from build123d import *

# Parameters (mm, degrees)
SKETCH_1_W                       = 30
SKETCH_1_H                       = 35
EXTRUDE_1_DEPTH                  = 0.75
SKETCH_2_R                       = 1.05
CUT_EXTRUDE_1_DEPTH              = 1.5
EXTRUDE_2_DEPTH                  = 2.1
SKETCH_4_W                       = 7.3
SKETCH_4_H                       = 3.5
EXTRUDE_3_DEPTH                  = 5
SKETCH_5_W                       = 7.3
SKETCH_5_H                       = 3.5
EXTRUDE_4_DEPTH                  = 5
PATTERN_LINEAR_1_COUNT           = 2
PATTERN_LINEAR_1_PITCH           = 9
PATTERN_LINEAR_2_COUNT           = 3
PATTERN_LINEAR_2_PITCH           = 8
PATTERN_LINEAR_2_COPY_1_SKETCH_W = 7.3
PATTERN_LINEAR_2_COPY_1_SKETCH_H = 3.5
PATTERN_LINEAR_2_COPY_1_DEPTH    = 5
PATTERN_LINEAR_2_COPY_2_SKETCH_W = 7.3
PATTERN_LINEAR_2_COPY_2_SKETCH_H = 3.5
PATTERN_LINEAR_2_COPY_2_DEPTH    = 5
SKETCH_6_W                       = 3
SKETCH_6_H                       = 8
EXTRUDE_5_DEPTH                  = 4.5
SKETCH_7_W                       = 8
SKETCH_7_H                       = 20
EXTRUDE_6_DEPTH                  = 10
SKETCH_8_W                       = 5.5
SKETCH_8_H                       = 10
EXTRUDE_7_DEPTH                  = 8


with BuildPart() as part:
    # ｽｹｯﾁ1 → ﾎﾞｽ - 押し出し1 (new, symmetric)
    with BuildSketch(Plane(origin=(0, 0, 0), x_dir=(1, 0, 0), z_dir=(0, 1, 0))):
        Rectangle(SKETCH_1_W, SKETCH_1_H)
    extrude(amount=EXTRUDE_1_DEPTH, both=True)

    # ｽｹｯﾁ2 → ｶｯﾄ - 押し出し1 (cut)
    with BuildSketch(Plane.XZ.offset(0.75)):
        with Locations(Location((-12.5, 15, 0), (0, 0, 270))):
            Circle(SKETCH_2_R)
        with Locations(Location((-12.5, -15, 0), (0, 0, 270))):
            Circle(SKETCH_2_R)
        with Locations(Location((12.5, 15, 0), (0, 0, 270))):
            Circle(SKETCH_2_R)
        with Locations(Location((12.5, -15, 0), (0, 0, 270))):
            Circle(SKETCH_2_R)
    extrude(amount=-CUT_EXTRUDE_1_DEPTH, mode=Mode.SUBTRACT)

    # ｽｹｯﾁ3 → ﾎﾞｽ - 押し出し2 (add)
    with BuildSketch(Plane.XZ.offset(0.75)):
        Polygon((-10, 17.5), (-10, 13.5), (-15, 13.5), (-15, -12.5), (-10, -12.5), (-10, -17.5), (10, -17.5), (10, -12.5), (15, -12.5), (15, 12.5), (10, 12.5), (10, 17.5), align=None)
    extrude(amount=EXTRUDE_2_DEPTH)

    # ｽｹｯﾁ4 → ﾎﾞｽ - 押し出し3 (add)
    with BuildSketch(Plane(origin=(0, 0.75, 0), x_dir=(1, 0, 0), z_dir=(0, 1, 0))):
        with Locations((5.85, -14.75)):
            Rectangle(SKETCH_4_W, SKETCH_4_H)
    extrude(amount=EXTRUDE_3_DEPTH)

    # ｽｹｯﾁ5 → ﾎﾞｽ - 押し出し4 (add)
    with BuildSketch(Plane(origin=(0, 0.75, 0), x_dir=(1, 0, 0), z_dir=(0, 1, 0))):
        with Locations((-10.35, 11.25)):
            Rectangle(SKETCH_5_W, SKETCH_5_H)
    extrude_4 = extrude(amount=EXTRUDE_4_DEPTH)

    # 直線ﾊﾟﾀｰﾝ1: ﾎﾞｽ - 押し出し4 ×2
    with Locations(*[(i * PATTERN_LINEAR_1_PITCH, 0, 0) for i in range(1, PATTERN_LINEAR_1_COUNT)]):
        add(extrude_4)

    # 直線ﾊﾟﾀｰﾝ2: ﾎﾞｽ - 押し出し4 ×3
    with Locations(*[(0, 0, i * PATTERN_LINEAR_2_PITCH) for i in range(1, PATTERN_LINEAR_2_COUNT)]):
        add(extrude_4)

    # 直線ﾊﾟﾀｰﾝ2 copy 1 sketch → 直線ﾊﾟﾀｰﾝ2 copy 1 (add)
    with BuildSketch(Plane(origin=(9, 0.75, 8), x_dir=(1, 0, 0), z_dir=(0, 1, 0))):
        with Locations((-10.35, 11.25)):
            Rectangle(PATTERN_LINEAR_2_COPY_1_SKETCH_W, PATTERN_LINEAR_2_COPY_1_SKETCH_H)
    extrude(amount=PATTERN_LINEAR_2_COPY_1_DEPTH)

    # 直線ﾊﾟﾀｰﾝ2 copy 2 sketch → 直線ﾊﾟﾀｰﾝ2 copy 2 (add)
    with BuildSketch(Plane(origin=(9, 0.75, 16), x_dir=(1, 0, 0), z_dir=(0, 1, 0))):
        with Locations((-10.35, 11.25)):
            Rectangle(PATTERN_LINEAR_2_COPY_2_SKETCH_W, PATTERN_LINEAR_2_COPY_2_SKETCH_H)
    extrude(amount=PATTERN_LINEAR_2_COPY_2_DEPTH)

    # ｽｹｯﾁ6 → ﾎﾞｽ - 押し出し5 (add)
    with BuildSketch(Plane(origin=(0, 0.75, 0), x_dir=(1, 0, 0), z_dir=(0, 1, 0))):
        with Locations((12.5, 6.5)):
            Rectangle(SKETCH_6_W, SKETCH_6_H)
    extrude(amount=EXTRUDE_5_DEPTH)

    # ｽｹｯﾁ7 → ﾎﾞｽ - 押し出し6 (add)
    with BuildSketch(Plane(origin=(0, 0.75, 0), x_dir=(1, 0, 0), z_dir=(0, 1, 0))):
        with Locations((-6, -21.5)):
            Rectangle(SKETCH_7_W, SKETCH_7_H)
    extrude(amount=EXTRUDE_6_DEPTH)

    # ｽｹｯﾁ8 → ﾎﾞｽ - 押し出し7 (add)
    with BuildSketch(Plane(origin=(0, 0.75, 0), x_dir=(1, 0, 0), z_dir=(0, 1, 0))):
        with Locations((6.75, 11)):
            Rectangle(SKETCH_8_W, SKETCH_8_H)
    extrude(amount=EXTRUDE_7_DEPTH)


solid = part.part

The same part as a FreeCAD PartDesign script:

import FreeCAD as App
import Part
import Sketcher
from FreeCAD import Vector
Q = App.Units.Quantity


def add_polygon(sketch, points):
    """Adds a closed chain of lines whose ends are joined by coincident constraints."""
    first, n = sketch.GeometryCount, len(points)
    for a, b in zip(points, points[1:] + points[:1]):
        sketch.addGeometry(Part.LineSegment(App.Vector(*a, 0), App.Vector(*b, 0)), False)
    for i in range(n):
        sketch.addConstraint(Sketcher.Constraint("Coincident", first + i, 2, first + (i + 1) % n, 1))

doc = App.newDocument("Part")
body = doc.addObject("PartDesign::Body", "Body")

sketch1 = body.newObject("Sketcher::SketchObject", "Sketch")
sketch1.AttachmentSupport = (doc.getObject("XZ_Plane"), [""])
sketch1.MapMode = "FlatFace"
add_polygon(sketch1, [(-15, -18), (-15, 18), (15, 18), (15, -18)])
sketch1.addConstraint(Sketcher.Constraint("Vertical", 0))
sketch1.addConstraint(Sketcher.Constraint("Horizontal", 1))
sketch1.addConstraint(Sketcher.Constraint("Vertical", 2))
sketch1.addConstraint(Sketcher.Constraint("Horizontal", 3))
sketch1.addConstraint(Sketcher.Constraint("Symmetric", 0, 2, 2, 2, -1, 1))
sketch1.addConstraint(Sketcher.Constraint("DistanceX", 1, 1, 1, 2, Q("30 mm")))
sketch1.addConstraint(Sketcher.Constraint("DistanceY", 0, 1, 0, 2, Q("35 mm")))
pad1 = body.newObject("PartDesign::Pad", "Pad")
pad1.Profile = sketch1
pad1.Length = 1.5
pad1.Midplane = True

sketch2 = body.newObject("Sketcher::SketchObject", "Sketch001")
sketch2.AttachmentSupport = (doc.getObject("XZ_Plane"), [""])
sketch2.MapMode = "FlatFace"
sketch2.AttachmentOffset = App.Placement(Vector(0, 0, 0.75), App.Rotation())
sketch2.addGeometry(Part.Circle(Vector(-12.5, 15, 0), Vector(0, 0, 1), 1.1), False)
sketch2.addGeometry(Part.Circle(Vector(-12.5, -15, 0), Vector(0, 0, 1), 1.1), False)
sketch2.addGeometry(Part.Circle(Vector(12.5, 15, 0), Vector(0, 0, 1), 1.1), False)
sketch2.addGeometry(Part.Circle(Vector(12.5, -15, 0), Vector(0, 0, 1), 1.1), False)
sketch2.addConstraint(Sketcher.Constraint("Equal", 0, 1))
sketch2.addConstraint(Sketcher.Constraint("Equal", 1, 2))
sketch2.addConstraint(Sketcher.Constraint("Equal", 2, 3))
sketch2.addConstraint(Sketcher.Constraint("Symmetric", 1, 3, 2, 3, -1, 1))
sketch2.addConstraint(Sketcher.Constraint("Symmetric", 0, 3, 3, 3, -1, 1))
sketch2.addConstraint(Sketcher.Constraint("Symmetric", 0, 3, 2, 3, -2))
sketch2.addConstraint(Sketcher.Constraint("Diameter", 0, Q("2.1 mm")))
sketch2.addConstraint(Sketcher.Constraint("DistanceY", -1, 1, 0, 3, Q("15 mm")))
sketch2.addConstraint(Sketcher.Constraint("DistanceX", 0, 3, 2, 3, Q("25 mm")))
pocket1 = body.newObject("PartDesign::Pocket", "Pocket")
pocket1.Profile = sketch2
pocket1.Length = 1.5

sketch3 = body.newObject("Sketcher::SketchObject", "Sketch002")
sketch3.AttachmentSupport = (doc.getObject("XZ_Plane"), [""])
sketch3.MapMode = "FlatFace"
sketch3.AttachmentOffset = App.Placement(Vector(0, 0, 0.75), App.Rotation())
add_polygon(sketch3, [(-10, 17.5), (-10, 13.5), (-15, 13.5), (-15, -12.5), (-10, -12.5), (-10, -17.5), (10, -17.5), (10, -12.5), (15, -12.5), (15, 12.5), (10, 12.5), (10, 17.5)])
sketch3.addConstraint(Sketcher.Constraint("Vertical", 0))
sketch3.addConstraint(Sketcher.Constraint("Horizontal", 1))
sketch3.addConstraint(Sketcher.Constraint("Vertical", 2))
sketch3.addConstraint(Sketcher.Constraint("Horizontal", 3))
sketch3.addConstraint(Sketcher.Constraint("Vertical", 4))
sketch3.addConstraint(Sketcher.Constraint("Horizontal", 5))
sketch3.addConstraint(Sketcher.Constraint("Vertical", 6))
sketch3.addConstraint(Sketcher.Constraint("Horizontal", 7))
sketch3.addConstraint(Sketcher.Constraint("Vertical", 8))
sketch3.addConstraint(Sketcher.Constraint("Horizontal", 9))
sketch3.addConstraint(Sketcher.Constraint("Vertical", 10))
sketch3.addConstraint(Sketcher.Constraint("Horizontal", 11))
sketch3.addConstraint(Sketcher.Constraint("Symmetric", 2, 2, 8, 2, -1, 1))
sketch3.addConstraint(Sketcher.Constraint("Symmetric", 4, 2, 10, 2, -1, 1))
sketch3.addConstraint(Sketcher.Constraint("Symmetric", 3, 2, 6, 2, -2))
sketch3.addConstraint(Sketcher.Constraint("Vertical", 0, 2, 3, 2))
sketch3.addConstraint(Sketcher.Constraint("Equal", 9, 4))
sketch3.addConstraint(Sketcher.Constraint("DistanceX", 1, 2, 1, 1, Q("5 mm")))
sketch3.addConstraint(Sketcher.Constraint("DistanceX", 5, 1, 5, 2, Q("20 mm")))
sketch3.addConstraint(Sketcher.Constraint("DistanceY", 0, 2, 0, 1, Q("4 mm")))
sketch3.addConstraint(Sketcher.Constraint("DistanceY", 2, 2, 2, 1, Q("26 mm")))
pad2 = body.newObject("PartDesign::Pad", "Pad001")
pad2.Profile = sketch3
pad2.Length = 2.1

sketch4 = body.newObject("Sketcher::SketchObject", "Sketch003")
sketch4.AttachmentSupport = (doc.getObject("XZ_Plane"), [""])
sketch4.MapMode = "FlatFace"
sketch4.AttachmentOffset = App.Placement(Vector(0, 0, -0.75), App.Rotation())
add_polygon(sketch4, [(2.2, 13), (2.2, 16.5), (9.5, 16.5), (9.5, 13)])
sketch4.addConstraint(Sketcher.Constraint("Vertical", 0))
sketch4.addConstraint(Sketcher.Constraint("Horizontal", 1))
sketch4.addConstraint(Sketcher.Constraint("Vertical", 2))
sketch4.addConstraint(Sketcher.Constraint("Horizontal", 3))
sketch4.addConstraint(Sketcher.Constraint("DistanceX", 1, 1, 1, 2, Q("7.3 mm")))
sketch4.addConstraint(Sketcher.Constraint("DistanceY", 0, 1, 0, 2, Q("3.5 mm")))
sketch4.addConstraint(Sketcher.Constraint("DistanceY", -1, 1, 2, 2, Q("13 mm")))
sketch4.addConstraint(Sketcher.Constraint("DistanceX", -1, 1, 0, 2, Q("2.2 mm")))
pad3 = body.newObject("PartDesign::Pad", "Pad002")
pad3.Profile = sketch4
pad3.Length = 5
pad3.Reversed = True

sketch5 = body.newObject("Sketcher::SketchObject", "Sketch004")
sketch5.AttachmentSupport = (doc.getObject("XZ_Plane"), [""])
sketch5.MapMode = "FlatFace"
sketch5.AttachmentOffset = App.Placement(Vector(0, 0, -0.75), App.Rotation())
add_polygon(sketch5, [(-14, -13), (-14, -9.5), (-6.7, -9.5), (-6.7, -13)])
sketch5.addConstraint(Sketcher.Constraint("Vertical", 0))
sketch5.addConstraint(Sketcher.Constraint("Horizontal", 1))
sketch5.addConstraint(Sketcher.Constraint("Vertical", 2))
sketch5.addConstraint(Sketcher.Constraint("Horizontal", 3))
sketch5.addConstraint(Sketcher.Constraint("DistanceX", 1, 1, 1, 2, Q("7.3 mm")))
sketch5.addConstraint(Sketcher.Constraint("DistanceY", 0, 1, 0, 2, Q("3.5 mm")))
sketch5.addConstraint(Sketcher.Constraint("DistanceX", 0, 2, -1, 1, Q("14 mm")))
sketch5.addConstraint(Sketcher.Constraint("DistanceY", 2, 2, -1, 1, Q("13 mm")))
pad4 = body.newObject("PartDesign::Pad", "Pad003")
pad4.Profile = sketch5
pad4.Length = 5
pad4.Reversed = True
doc.recompute()

linearpattern = body.newObject("PartDesign::LinearPattern", "LinearPattern")
linearpattern.Originals = [pad4]
linearpattern.Direction = (doc.getObject("X_Axis"), [""])
linearpattern.Mode = "offset"
linearpattern.Offset = 9
linearpattern.Occurrences = 2
body.Tip = linearpattern
doc.recompute()

linearpattern2 = body.newObject("PartDesign::LinearPattern", "LinearPattern001")
linearpattern2.Originals = [pad4]
linearpattern2.Direction = (doc.getObject("Z_Axis"), [""])
linearpattern2.Mode = "offset"
linearpattern2.Offset = 8
linearpattern2.Occurrences = 3
body.Tip = linearpattern2

sketch6 = body.newObject("Sketcher::SketchObject", "Sketch005")
sketch6.AttachmentSupport = (doc.getObject("XZ_Plane"), [""])
sketch6.MapMode = "FlatFace"
sketch6.AttachmentOffset = App.Placement(Vector(0, 0, -0.75), App.Rotation())
add_polygon(sketch6, [(-5, -5), (-5, -1.5), (2.3, -1.5), (2.3, -5)])
sketch6.addConstraint(Sketcher.Constraint("Vertical", 0))
sketch6.addConstraint(Sketcher.Constraint("Horizontal", 1))
sketch6.addConstraint(Sketcher.Constraint("Vertical", 2))
sketch6.addConstraint(Sketcher.Constraint("Horizontal", 3))
sketch6.addConstraint(Sketcher.Constraint("DistanceX", 1, 1, 1, 2, Q("7.3 mm")))
sketch6.addConstraint(Sketcher.Constraint("DistanceY", 0, 1, 0, 2, Q("3.5 mm")))
sketch6.addConstraint(Sketcher.Constraint("DistanceX", 0, 2, -1, 1, Q("5 mm")))
sketch6.addConstraint(Sketcher.Constraint("DistanceY", 2, 2, -1, 1, Q("5 mm")))
pad5 = body.newObject("PartDesign::Pad", "Pad004")
pad5.Profile = sketch6
pad5.Length = 5
pad5.Reversed = True

sketch7 = body.newObject("Sketcher::SketchObject", "Sketch006")
sketch7.AttachmentSupport = (doc.getObject("XZ_Plane"), [""])
sketch7.MapMode = "FlatFace"
sketch7.AttachmentOffset = App.Placement(Vector(0, 0, -0.75), App.Rotation())
add_polygon(sketch7, [(-5, 3), (-5, 6.5), (2.3, 6.5), (2.3, 3)])
sketch7.addConstraint(Sketcher.Constraint("Vertical", 0))
sketch7.addConstraint(Sketcher.Constraint("Horizontal", 1))
sketch7.addConstraint(Sketcher.Constraint("Vertical", 2))
sketch7.addConstraint(Sketcher.Constraint("Horizontal", 3))
sketch7.addConstraint(Sketcher.Constraint("DistanceX", 1, 1, 1, 2, Q("7.3 mm")))
sketch7.addConstraint(Sketcher.Constraint("DistanceY", 0, 1, 0, 2, Q("3.5 mm")))
sketch7.addConstraint(Sketcher.Constraint("DistanceX", 0, 2, -1, 1, Q("5 mm")))
sketch7.addConstraint(Sketcher.Constraint("DistanceY", -1, 1, 2, 2, Q("3 mm")))
pad6 = body.newObject("PartDesign::Pad", "Pad005")
pad6.Profile = sketch7
pad6.Length = 5
pad6.Reversed = True

sketch8 = body.newObject("Sketcher::SketchObject", "Sketch007")
sketch8.AttachmentSupport = (doc.getObject("XZ_Plane"), [""])
sketch8.MapMode = "FlatFace"
sketch8.AttachmentOffset = App.Placement(Vector(0, 0, -0.75), App.Rotation())
add_polygon(sketch8, [(11, -10.5), (11, -2.5), (14, -2.5), (14, -10.5)])
sketch8.addConstraint(Sketcher.Constraint("Vertical", 0))
sketch8.addConstraint(Sketcher.Constraint("Horizontal", 1))
sketch8.addConstraint(Sketcher.Constraint("Vertical", 2))
sketch8.addConstraint(Sketcher.Constraint("Horizontal", 3))
sketch8.addConstraint(Sketcher.Constraint("DistanceX", 1, 1, 1, 2, Q("3 mm")))
sketch8.addConstraint(Sketcher.Constraint("DistanceY", 0, 1, 0, 2, Q("8 mm")))
sketch8.addConstraint(Sketcher.Constraint("DistanceX", -1, 1, 0, 2, Q("11 mm")))
sketch8.addConstraint(Sketcher.Constraint("DistanceY", 0, 2, -1, 1, Q("2.5 mm")))
pad7 = body.newObject("PartDesign::Pad", "Pad006")
pad7.Profile = sketch8
pad7.Length = 4.5
pad7.Reversed = True

sketch9 = body.newObject("Sketcher::SketchObject", "Sketch008")
sketch9.AttachmentSupport = (doc.getObject("XZ_Plane"), [""])
sketch9.MapMode = "FlatFace"
sketch9.AttachmentOffset = App.Placement(Vector(0, 0, -0.75), App.Rotation())
add_polygon(sketch9, [(-10, 12), (-10, 32), (-2, 32), (-2, 12)])
sketch9.addConstraint(Sketcher.Constraint("Vertical", 0))
sketch9.addConstraint(Sketcher.Constraint("Horizontal", 1))
sketch9.addConstraint(Sketcher.Constraint("Vertical", 2))
sketch9.addConstraint(Sketcher.Constraint("Horizontal", 3))
sketch9.addConstraint(Sketcher.Constraint("DistanceX", 1, 1, 1, 2, Q("8 mm")))
sketch9.addConstraint(Sketcher.Constraint("DistanceY", 0, 1, 0, 2, Q("20 mm")))
sketch9.addConstraint(Sketcher.Constraint("DistanceX", 0, 2, -1, 1, Q("10 mm")))
sketch9.addConstraint(Sketcher.Constraint("DistanceY", -1, 1, 0, 2, Q("31.5 mm")))
pad8 = body.newObject("PartDesign::Pad", "Pad007")
pad8.Profile = sketch9
pad8.Length = 10
pad8.Reversed = True

sketch10 = body.newObject("Sketcher::SketchObject", "Sketch009")
sketch10.AttachmentSupport = (doc.getObject("XZ_Plane"), [""])
sketch10.MapMode = "FlatFace"
sketch10.AttachmentOffset = App.Placement(Vector(0, 0, -0.75), App.Rotation())
add_polygon(sketch10, [(4, -16), (4, -6), (10, -6), (10, -16)])
sketch10.addConstraint(Sketcher.Constraint("Vertical", 0))
sketch10.addConstraint(Sketcher.Constraint("Horizontal", 1))
sketch10.addConstraint(Sketcher.Constraint("Vertical", 2))
sketch10.addConstraint(Sketcher.Constraint("Horizontal", 3))
sketch10.addConstraint(Sketcher.Constraint("DistanceY", 0, 1, 0, 2, Q("10 mm")))
sketch10.addConstraint(Sketcher.Constraint("DistanceX", 1, 1, 1, 2, Q("5.5 mm")))
sketch10.addConstraint(Sketcher.Constraint("DistanceX", -1, 1, 0, 2, Q("4 mm")))
sketch10.addConstraint(Sketcher.Constraint("DistanceY", 0, 2, -1, 1, Q("6 mm")))
pad9 = body.newObject("PartDesign::Pad", "Pad008")
pad9.Profile = sketch10
pad9.Length = 8
pad9.Reversed = True

doc.recompute()
